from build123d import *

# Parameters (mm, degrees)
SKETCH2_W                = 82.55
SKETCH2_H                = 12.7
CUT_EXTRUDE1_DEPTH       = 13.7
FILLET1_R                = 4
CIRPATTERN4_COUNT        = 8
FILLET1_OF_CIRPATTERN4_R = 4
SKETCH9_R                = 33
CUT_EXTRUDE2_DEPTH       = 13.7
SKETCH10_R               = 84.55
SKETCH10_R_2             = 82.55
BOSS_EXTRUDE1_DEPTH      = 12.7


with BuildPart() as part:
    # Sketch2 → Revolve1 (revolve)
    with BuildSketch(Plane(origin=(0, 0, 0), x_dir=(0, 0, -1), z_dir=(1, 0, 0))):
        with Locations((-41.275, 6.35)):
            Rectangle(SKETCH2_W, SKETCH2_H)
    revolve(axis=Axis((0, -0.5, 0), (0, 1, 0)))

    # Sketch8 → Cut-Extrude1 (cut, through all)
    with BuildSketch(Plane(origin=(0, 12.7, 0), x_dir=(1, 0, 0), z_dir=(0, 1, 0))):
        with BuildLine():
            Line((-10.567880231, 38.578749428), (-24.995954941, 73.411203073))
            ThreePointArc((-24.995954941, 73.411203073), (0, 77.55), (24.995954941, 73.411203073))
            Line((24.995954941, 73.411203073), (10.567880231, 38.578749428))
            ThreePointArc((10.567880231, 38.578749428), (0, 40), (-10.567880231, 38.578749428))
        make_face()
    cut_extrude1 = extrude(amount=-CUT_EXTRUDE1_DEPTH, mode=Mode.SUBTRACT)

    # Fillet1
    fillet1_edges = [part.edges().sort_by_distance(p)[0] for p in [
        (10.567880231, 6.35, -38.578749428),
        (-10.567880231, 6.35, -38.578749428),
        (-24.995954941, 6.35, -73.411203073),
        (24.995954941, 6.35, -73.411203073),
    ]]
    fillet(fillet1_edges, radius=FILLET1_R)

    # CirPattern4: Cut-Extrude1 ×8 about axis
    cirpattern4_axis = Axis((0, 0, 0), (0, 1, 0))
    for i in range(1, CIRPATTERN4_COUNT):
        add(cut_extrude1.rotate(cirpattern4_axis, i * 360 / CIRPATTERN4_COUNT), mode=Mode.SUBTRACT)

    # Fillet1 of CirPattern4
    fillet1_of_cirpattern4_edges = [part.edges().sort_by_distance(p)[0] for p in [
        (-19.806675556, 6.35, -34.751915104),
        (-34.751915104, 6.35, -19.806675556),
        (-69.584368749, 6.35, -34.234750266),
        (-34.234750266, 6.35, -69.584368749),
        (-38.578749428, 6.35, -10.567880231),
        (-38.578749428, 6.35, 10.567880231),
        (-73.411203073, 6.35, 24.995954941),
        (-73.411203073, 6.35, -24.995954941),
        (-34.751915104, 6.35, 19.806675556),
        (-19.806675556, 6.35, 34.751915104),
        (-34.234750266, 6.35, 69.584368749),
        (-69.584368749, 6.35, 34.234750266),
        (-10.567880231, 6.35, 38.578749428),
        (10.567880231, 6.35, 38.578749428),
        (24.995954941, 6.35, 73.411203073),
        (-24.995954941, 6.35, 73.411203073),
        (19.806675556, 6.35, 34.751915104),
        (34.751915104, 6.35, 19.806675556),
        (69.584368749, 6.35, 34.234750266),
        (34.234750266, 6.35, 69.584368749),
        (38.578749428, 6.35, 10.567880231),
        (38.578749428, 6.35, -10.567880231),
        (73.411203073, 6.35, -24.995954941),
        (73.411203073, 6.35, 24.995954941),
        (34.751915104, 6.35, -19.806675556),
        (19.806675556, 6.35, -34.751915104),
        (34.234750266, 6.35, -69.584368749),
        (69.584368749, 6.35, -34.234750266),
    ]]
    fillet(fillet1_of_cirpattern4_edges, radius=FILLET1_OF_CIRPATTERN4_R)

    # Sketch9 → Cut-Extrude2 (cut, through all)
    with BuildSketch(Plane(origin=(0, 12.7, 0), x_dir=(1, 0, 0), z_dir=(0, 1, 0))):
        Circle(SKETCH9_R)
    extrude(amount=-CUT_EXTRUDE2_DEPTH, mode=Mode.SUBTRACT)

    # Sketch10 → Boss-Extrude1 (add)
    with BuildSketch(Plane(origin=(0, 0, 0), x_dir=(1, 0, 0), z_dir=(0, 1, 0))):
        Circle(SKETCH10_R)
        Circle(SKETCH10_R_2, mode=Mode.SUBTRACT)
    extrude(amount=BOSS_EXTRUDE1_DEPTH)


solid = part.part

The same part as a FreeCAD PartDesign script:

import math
import FreeCAD as App
import Part
import Sketcher
from FreeCAD import Vector
Q = App.Units.Quantity


def edges_at(feature, points):
    """Names of the edges that pass closest to the given points."""
    edges = feature.Shape.Edges
    near = lambda p: min(range(len(edges)), key=lambda i: edges[i].distToShape(Part.Vertex(*p))[0])
    return sorted({f"Edge{near(p) + 1}" for p in points})


def add_polygon(sketch, points):
    """Adds a closed chain of lines whose ends are joined by coincident constraints."""
    first, n = sketch.GeometryCount, len(points)
    for a, b in zip(points, points[1:] + points[:1]):
        sketch.addGeometry(Part.LineSegment(App.Vector(*a, 0), App.Vector(*b, 0)), False)
    for i in range(n):
        sketch.addConstraint(Sketcher.Constraint("Coincident", first + i, 2, first + (i + 1) % n, 1))

doc = App.newDocument("Part")
body = doc.addObject("PartDesign::Body", "Body")

# Sketch on YZ plane
sketch1 = body.newObject("Sketcher::SketchObject", "Sketch")
sketch1.AttachmentSupport = (doc.getObject("YZ_Plane"), [""])
sketch1.MapMode = "FlatFace"
add_polygon(sketch1, [(13, 83), (0, 83), (0, 0), (13, 0)])  # lines 0-3
sketch1.addConstraint([
    Sketcher.Constraint("Horizontal", 0),
    Sketcher.Constraint("Vertical", 1),
    Sketcher.Constraint("Horizontal", 2),
    Sketcher.Constraint("Vertical", 3),
    Sketcher.Constraint("Coincident", 1, 2, -1, 1),
    Sketcher.Constraint("DistanceX", 0, 2, 0, 1, Q("12.7 mm")),
    Sketcher.Constraint("DistanceY", 1, 2, 1, 1, Q("82.55 mm")),
])
revolution = body.newObject("PartDesign::Revolution", "Revolution")
revolution.Profile = sketch1
revolution.ReferenceAxis = (sketch1, ["H_Axis"])
revolution.Angle = 360

# Sketch on XZ plane
sketch2 = body.newObject("Sketcher::SketchObject", "Sketch001")
sketch2.AttachmentSupport = (doc.getObject("XZ_Plane"), [""])
sketch2.MapMode = "FlatFace"
sketch2.AttachmentOffset = App.Placement(Vector(0, 0, -12.7), App.Rotation())
sketch2.addGeometry([
    Part.LineSegment(Vector(-25, -73, 0), Vector(-11, -39, 0)),
    Part.ArcOfCircle(Part.Circle(Vector(0, 0, 0), Vector(0, 0, 1), 40), math.radians(-105), math.radians(-75)),
    Part.LineSegment(Vector(11, -39, 0), Vector(25, -73, 0)),
    Part.ArcOfCircle(Part.Circle(Vector(0, 0, 0), Vector(0, 0, 1), 78), math.radians(-109), math.radians(-71)),
], False)
sketch2.addConstraint([
    Sketcher.Constraint("Coincident", 0, 2, 1, 1),
    Sketcher.Constraint("Coincident", 1, 2, 2, 1),
    Sketcher.Constraint("Coincident", 2, 2, 3, 2),
    Sketcher.Constraint("Coincident", 3, 1, 0, 1),
    Sketcher.Constraint("Coincident", 1, 3, -1, 1),
    Sketcher.Constraint("Coincident", 3, 3, -1, 1),
    Sketcher.Constraint("Horizontal", 0, 2, 1, 2),
    Sketcher.Constraint("Horizontal", 2, 2, 3, 1),
    Sketcher.Constraint("Radius", 1, Q("40 mm")),
    Sketcher.Constraint("Radius", 3, Q("77.55 mm")),
    Sketcher.Constraint("Angle", 0, Q("67.5 deg")),
    Sketcher.Constraint("DistanceX", 0, 2, -1, 1, Q("10.56788 mm")),
])
pocket1 = body.newObject("PartDesign::Pocket", "Pocket")
pocket1.Profile = sketch2
pocket1.Type = "ThroughAll"
pocket1.Reversed = True
doc.recompute()

fillet = body.newObject("PartDesign::Fillet", "Fillet")
fillet.Base = (pocket1, edges_at(pocket1, [
    (10.568, 6.35, -38.579),
    (-10.568, 6.35, -38.579),
    (-24.996, 6.35, -73.411),
    (24.996, 6.35, -73.411),
]))
fillet.Radius = 4
doc.recompute()

polarpattern = body.newObject("PartDesign::PolarPattern", "PolarPattern")
polarpattern.Originals = [pocket1]
polarpattern.Axis = (doc.getObject("Y_Axis"), [""])
polarpattern.Angle = 360
polarpattern.Occurrences = 8
body.Tip = polarpattern
doc.recompute()

fillet2 = body.newObject("PartDesign::Fillet", "Fillet001")
fillet2.Base = (polarpattern, edges_at(polarpattern, [
    (-19.807, 6.35, -34.752),
    (-34.752, 6.35, -19.807),
    (-69.584, 6.35, -34.235),
    (-34.235, 6.35, -69.584),
    (-38.579, 6.35, -10.568),
    (-38.579, 6.35, 10.568),
    (-73.411, 6.35, 24.996),
    (-73.411, 6.35, -24.996),
    (-34.752, 6.35, 19.807),
    (-19.807, 6.35, 34.752),
    (-34.235, 6.35, 69.584),
    (-69.584, 6.35, 34.235),
    (-10.568, 6.35, 38.579),
    (10.568, 6.35, 38.579),
    (24.996, 6.35, 73.411),
    (-24.996, 6.35, 73.411),
    (19.807, 6.35, 34.752),
    (34.752, 6.35, 19.807),
    (69.584, 6.35, 34.235),
    (34.235, 6.35, 69.584),
    (38.579, 6.35, 10.568),
    (38.579, 6.35, -10.568),
    (73.411, 6.35, -24.996),
    (73.411, 6.35, 24.996),
    (34.752, 6.35, -19.807),
    (19.807, 6.35, -34.752),
    (34.235, 6.35, -69.584),
    (69.584, 6.35, -34.235),
]))
fillet2.Radius = 4

# Sketch on XZ plane
sketch3 = body.newObject("Sketcher::SketchObject", "Sketch002")
sketch3.AttachmentSupport = (doc.getObject("XZ_Plane"), [""])
sketch3.MapMode = "FlatFace"
sketch3.AttachmentOffset = App.Placement(Vector(0, 0, -12.7), App.Rotation())
sketch3.addGeometry(Part.Circle(Vector(0, 0, 0), Vector(0, 0, 1), 33), False)
sketch3.addConstraint([
    Sketcher.Constraint("Coincident", 0, 3, -1, 1),
    Sketcher.Constraint("Diameter", 0, Q("66 mm")),
])
pocket2 = body.newObject("PartDesign::Pocket", "Pocket001")
pocket2.Profile = sketch3
pocket2.Type = "ThroughAll"
pocket2.Reversed = True

# Sketch on XZ plane
sketch4 = body.newObject("Sketcher::SketchObject", "Sketch003")
sketch4.AttachmentSupport = (doc.getObject("XZ_Plane"), [""])
sketch4.MapMode = "FlatFace"
sketch4.addGeometry([
    Part.Circle(Vector(0, 0, 0), Vector(0, 0, 1), 85),
    Part.Circle(Vector(0, 0, 0), Vector(0, 0, 1), 83),
], False)
sketch4.addConstraint([
    Sketcher.Constraint("Coincident", 0, 3, -1, 1),
    Sketcher.Constraint("Coincident", 1, 3, -1, 1),
    Sketcher.Constraint("Diameter", 0, Q("169.1 mm")),
    Sketcher.Constraint("Diameter", 1, Q("165.1 mm")),
])
pad1 = body.newObject("PartDesign::Pad", "Pad")
pad1.Profile = sketch4
pad1.Length = 12.7
pad1.Reversed = True

doc.recompute()
